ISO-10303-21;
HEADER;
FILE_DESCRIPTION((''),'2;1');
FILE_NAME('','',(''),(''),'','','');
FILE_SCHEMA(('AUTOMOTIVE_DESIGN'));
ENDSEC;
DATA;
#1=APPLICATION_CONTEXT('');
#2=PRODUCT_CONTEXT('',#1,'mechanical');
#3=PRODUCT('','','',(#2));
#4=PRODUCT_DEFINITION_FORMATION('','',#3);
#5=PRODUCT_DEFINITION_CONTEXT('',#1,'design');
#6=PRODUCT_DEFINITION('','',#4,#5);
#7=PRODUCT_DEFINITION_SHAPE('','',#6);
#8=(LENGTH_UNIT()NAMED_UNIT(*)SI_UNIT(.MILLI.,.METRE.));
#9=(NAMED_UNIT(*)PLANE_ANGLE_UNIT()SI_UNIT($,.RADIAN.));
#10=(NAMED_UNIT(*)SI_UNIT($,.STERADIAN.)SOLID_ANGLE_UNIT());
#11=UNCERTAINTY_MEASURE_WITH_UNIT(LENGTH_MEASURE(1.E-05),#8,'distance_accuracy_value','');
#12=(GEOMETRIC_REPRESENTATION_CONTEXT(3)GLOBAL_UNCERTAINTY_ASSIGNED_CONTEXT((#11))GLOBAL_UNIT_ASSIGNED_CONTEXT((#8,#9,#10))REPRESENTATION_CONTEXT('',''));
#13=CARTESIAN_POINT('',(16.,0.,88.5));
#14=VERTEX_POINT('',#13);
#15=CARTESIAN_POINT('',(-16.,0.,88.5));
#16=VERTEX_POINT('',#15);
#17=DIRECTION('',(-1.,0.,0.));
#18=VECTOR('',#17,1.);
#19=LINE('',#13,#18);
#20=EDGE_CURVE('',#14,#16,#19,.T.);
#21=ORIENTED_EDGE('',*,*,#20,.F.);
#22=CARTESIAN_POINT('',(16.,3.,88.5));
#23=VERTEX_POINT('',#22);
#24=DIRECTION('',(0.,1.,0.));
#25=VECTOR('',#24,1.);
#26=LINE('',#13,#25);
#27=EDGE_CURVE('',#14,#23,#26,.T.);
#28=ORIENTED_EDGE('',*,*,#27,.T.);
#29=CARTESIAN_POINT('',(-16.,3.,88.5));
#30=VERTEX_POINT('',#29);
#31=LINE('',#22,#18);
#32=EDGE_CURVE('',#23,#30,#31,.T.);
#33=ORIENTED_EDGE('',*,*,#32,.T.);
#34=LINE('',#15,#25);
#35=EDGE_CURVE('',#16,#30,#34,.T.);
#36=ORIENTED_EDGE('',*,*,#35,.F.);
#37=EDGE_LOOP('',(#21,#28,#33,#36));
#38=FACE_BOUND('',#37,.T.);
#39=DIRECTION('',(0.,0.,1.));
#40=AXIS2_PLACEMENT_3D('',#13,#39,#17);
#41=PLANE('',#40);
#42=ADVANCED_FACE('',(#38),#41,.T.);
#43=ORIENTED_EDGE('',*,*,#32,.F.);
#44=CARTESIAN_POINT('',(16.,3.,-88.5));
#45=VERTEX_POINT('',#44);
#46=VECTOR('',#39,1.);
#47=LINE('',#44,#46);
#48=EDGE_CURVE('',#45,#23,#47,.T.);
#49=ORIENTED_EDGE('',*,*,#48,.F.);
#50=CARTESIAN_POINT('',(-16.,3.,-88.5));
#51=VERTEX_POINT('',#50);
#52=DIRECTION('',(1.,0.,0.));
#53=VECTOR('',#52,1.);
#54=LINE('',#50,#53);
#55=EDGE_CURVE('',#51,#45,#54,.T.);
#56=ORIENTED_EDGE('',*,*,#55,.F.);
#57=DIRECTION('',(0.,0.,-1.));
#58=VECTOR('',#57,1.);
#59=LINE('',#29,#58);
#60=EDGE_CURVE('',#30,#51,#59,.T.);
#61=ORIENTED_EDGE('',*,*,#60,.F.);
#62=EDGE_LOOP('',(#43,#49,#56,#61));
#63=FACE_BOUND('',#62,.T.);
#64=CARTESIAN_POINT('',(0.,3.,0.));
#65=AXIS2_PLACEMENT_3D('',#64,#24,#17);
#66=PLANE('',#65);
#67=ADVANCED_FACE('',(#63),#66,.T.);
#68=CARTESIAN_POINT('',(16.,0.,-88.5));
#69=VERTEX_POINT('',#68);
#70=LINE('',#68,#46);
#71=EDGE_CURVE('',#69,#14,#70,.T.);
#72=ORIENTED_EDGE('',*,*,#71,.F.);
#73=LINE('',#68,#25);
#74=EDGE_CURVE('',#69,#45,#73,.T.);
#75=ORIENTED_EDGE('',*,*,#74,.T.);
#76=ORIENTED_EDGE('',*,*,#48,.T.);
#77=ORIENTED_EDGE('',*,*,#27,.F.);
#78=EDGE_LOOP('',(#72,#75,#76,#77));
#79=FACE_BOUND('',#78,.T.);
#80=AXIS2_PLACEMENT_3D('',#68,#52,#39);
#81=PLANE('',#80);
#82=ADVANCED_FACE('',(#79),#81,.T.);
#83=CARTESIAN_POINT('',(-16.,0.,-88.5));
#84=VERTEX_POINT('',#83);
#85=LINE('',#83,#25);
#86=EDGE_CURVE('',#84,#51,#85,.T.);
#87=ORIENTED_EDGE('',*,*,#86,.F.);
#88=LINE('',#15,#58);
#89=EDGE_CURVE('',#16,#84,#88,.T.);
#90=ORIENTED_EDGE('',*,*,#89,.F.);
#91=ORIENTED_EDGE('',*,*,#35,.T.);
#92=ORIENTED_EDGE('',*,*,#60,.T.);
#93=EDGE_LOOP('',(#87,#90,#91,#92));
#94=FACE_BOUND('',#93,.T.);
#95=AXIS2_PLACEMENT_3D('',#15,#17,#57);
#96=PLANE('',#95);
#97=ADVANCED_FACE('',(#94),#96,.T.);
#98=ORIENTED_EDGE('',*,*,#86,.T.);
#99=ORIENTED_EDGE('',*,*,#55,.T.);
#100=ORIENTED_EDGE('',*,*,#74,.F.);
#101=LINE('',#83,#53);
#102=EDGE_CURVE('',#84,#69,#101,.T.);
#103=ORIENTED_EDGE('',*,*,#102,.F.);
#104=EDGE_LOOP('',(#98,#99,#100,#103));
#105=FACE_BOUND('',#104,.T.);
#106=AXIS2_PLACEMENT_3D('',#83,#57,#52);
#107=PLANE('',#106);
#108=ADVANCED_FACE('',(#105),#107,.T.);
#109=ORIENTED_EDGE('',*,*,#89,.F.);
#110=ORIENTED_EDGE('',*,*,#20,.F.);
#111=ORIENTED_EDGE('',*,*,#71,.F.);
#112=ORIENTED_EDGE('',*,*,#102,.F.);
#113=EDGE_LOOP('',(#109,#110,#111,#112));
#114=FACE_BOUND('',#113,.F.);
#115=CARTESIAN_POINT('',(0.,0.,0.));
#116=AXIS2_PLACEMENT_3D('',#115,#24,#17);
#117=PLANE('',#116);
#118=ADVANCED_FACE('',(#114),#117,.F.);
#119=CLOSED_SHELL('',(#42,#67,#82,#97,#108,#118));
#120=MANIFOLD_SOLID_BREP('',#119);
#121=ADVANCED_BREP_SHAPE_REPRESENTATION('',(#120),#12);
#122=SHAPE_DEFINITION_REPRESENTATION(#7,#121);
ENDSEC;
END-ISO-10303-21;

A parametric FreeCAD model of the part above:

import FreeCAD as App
import Part
import Sketcher

V = App.Vector

doc = App.newDocument("Part")
body = doc.addObject("PartDesign::Body", "Body")

# Sketch on XZ plane
sketch1 = body.newObject("Sketcher::SketchObject", "Sketch")
sketch1.AttachmentSupport = (doc.getObject("XZ_Plane"), [""])
sketch1.MapMode = "FlatFace"
sketch1.addGeometry(Part.LineSegment(V(-16, 88, 0), V(16, 88, 0)), False)
sketch1.addGeometry(Part.LineSegment(V(16, 88, 0), V(16, -88, 0)), False)
sketch1.addGeometry(Part.LineSegment(V(16, -88, 0), V(-16, -88, 0)), False)
sketch1.addGeometry(Part.LineSegment(V(-16, -88, 0), V(-16, 88, 0)), False)
sketch1.addConstraint(Sketcher.Constraint("Coincident", 0, 2, 1, 1))
sketch1.addConstraint(Sketcher.Constraint("Coincident", 1, 2, 2, 1))
sketch1.addConstraint(Sketcher.Constraint("Coincident", 2, 2, 3, 1))
sketch1.addConstraint(Sketcher.Constraint("Coincident", 3, 2, 0, 1))
sketch1.addConstraint(Sketcher.Constraint("Horizontal", 0))
sketch1.addConstraint(Sketcher.Constraint("Vertical", 1))
sketch1.addConstraint(Sketcher.Constraint("Horizontal", 2))
sketch1.addConstraint(Sketcher.Constraint("Vertical", 3))
sketch1.addConstraint(Sketcher.Constraint("Symmetric", 0, 2, 2, 2, -1, 1))
sketch1.addConstraint(Sketcher.Constraint("DistanceX", 0, 1, 0, 2, 32.0))
sketch1.addConstraint(Sketcher.Constraint("DistanceY", 1, 2, 1, 1, 177.0))
pad1 = body.newObject("PartDesign::Pad", "Pad")
pad1.Profile = sketch1
pad1.Length = 3
pad1.Reversed = True

doc.recompute()
